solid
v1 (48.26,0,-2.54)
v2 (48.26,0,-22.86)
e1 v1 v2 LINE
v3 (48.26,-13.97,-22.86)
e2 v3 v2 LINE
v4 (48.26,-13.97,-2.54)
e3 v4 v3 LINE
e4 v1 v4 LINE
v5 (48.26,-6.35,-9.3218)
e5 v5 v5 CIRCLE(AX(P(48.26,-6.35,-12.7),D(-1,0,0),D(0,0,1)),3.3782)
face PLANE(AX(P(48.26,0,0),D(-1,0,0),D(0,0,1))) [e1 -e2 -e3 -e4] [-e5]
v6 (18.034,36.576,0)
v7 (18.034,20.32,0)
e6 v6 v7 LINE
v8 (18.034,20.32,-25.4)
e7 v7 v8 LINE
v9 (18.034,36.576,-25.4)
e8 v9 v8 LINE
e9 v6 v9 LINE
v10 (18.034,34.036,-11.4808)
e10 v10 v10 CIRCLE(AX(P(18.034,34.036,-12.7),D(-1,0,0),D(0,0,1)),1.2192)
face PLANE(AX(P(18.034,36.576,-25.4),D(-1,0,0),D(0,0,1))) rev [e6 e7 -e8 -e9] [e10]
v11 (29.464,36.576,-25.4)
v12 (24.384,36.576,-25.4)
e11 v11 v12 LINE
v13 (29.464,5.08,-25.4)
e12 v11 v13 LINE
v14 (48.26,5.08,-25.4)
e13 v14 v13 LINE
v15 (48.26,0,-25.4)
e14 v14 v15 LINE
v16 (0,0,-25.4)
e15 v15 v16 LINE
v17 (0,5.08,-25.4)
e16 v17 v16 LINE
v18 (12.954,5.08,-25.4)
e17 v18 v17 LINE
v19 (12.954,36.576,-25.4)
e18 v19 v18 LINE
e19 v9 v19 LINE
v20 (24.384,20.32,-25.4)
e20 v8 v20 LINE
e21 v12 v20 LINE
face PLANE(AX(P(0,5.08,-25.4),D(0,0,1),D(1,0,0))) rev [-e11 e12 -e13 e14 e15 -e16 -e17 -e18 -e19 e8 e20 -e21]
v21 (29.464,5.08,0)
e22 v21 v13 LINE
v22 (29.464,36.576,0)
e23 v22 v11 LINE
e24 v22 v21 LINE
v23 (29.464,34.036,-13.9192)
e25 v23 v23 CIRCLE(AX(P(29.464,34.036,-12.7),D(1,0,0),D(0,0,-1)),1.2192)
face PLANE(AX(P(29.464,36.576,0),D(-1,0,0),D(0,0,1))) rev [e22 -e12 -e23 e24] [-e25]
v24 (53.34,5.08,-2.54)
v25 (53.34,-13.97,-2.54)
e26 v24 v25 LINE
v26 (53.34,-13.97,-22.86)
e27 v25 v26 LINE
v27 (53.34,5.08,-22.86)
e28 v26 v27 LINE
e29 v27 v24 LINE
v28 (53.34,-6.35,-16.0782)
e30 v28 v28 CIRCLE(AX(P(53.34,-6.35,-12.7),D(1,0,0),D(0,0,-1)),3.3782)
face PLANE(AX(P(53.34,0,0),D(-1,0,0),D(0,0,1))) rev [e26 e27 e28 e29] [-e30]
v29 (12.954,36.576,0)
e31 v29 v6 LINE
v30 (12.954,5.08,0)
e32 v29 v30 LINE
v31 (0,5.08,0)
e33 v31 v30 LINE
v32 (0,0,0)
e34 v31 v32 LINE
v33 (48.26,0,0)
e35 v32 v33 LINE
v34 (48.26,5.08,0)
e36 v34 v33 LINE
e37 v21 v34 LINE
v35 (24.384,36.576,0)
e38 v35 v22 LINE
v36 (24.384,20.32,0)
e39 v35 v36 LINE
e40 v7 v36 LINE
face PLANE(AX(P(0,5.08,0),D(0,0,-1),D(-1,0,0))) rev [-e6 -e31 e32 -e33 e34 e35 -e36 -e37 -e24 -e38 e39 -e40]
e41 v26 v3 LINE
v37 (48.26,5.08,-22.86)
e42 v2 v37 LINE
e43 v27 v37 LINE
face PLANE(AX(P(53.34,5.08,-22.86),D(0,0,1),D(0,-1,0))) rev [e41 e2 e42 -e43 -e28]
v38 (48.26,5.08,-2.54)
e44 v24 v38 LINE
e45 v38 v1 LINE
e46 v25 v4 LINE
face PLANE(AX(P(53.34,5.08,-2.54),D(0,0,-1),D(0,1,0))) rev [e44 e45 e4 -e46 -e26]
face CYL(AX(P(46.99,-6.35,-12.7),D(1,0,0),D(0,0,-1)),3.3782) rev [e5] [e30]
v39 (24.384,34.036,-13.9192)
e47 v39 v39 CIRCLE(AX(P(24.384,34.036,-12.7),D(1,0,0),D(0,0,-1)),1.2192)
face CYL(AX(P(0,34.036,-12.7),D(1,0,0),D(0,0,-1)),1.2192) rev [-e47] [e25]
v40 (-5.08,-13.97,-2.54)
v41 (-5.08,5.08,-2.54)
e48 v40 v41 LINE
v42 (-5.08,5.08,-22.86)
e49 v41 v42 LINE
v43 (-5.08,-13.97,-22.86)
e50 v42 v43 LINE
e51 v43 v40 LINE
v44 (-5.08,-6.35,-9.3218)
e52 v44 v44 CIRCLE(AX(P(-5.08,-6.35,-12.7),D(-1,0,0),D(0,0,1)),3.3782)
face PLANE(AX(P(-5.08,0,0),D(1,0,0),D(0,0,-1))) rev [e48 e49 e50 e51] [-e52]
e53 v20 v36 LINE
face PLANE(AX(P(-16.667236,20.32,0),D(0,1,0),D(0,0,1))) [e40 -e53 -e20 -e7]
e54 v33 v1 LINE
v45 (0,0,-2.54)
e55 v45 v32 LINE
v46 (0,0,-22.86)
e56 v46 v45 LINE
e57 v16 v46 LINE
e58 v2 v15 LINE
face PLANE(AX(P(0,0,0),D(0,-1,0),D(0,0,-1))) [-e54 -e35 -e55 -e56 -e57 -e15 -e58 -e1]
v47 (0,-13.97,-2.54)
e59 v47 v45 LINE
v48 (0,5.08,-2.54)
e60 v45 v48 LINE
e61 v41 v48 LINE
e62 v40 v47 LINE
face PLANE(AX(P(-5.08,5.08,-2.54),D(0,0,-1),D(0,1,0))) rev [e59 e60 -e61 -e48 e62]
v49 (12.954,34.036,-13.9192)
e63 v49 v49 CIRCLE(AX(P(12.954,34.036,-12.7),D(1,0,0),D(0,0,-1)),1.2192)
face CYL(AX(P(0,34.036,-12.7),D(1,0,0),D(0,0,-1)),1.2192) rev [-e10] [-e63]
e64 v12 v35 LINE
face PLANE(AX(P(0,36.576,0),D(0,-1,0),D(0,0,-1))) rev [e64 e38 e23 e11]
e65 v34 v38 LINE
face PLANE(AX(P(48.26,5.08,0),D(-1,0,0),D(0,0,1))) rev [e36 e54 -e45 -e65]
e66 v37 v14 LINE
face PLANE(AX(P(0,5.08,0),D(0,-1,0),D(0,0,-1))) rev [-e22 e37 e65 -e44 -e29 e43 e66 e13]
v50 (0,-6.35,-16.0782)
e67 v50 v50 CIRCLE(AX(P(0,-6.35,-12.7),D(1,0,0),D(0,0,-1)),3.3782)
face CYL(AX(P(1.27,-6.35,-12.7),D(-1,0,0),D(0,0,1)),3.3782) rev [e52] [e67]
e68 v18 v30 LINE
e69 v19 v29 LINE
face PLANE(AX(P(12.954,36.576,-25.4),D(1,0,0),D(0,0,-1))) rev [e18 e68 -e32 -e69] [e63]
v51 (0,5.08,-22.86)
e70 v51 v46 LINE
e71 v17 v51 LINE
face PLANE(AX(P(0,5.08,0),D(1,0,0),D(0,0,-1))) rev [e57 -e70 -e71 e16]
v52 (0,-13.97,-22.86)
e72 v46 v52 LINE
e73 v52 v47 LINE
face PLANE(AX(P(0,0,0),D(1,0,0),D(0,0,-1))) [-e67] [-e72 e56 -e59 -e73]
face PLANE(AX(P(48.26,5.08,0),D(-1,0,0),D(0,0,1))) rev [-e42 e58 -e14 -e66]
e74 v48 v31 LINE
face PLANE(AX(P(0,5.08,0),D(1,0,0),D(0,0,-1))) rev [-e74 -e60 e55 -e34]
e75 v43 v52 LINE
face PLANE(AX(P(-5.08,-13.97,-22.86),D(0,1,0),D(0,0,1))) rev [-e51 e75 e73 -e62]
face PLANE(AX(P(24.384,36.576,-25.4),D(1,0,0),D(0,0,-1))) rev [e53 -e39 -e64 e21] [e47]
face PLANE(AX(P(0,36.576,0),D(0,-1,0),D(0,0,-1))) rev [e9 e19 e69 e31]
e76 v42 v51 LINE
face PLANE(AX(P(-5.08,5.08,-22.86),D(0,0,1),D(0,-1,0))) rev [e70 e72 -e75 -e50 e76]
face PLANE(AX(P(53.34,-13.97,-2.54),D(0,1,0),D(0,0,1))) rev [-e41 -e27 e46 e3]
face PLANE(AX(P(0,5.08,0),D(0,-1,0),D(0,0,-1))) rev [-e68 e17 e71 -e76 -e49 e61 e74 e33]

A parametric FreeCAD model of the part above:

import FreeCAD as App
import Part
import Sketcher
from FreeCAD import Vector
Q = App.Units.Quantity

doc = App.newDocument("Part")
body = doc.addObject("PartDesign::Body", "Body")

sketch1 = body.newObject("Sketcher::SketchObject", "Sketch")
sketch1.AttachmentSupport = (doc.getObject("XZ_Plane"), [""])
sketch1.MapMode = "FlatFace"
sketch1.addGeometry([
    Part.LineSegment(Vector(0, -25, 0), Vector(0, 0, 0)),
    Part.LineSegment(Vector(0, 0, 0), Vector(48, 0, 0)),
    Part.LineSegment(Vector(48, 0, 0), Vector(48, -25, 0)),
    Part.LineSegment(Vector(48, -25, 0), Vector(0, -25, 0)),
], False)
sketch1.addConstraint([
    Sketcher.Constraint("Coincident", 0, 2, 1, 1),
    Sketcher.Constraint("Coincident", 1, 2, 2, 1),
    Sketcher.Constraint("Coincident", 2, 2, 3, 1),
    Sketcher.Constraint("Coincident", 3, 2, 0, 1),
    Sketcher.Constraint("Vertical", 0),
    Sketcher.Constraint("Horizontal", 1),
    Sketcher.Constraint("Vertical", 2),
    Sketcher.Constraint("Horizontal", 3),
    Sketcher.Constraint("Coincident", 0, 2, -1, 1),
    Sketcher.Constraint("DistanceY", 0, 1, 0, 2, Q("1 in")),
    Sketcher.Constraint("DistanceX", 1, 1, 1, 2, Q("1.9 in")),
])
pad1 = body.newObject("PartDesign::Pad", "Pad")
pad1.Profile = sketch1
pad1.Length = Q("0.2 in")
pad1.Reversed = True

sketch2 = body.newObject("Sketcher::SketchObject", "Sketch001")
sketch2.AttachmentSupport = (doc.getObject("XZ_Plane"), [""])
sketch2.MapMode = "FlatFace"
sketch2.AttachmentOffset = App.Placement(Vector(0, 0, -0.2 * 25.4), App.Rotation())
sketch2.addGeometry([
    Part.LineSegment(Vector(24, -25, 0), Vector(24, 0, 0)),
    Part.LineSegment(Vector(24, 0, 0), Vector(29, 0, 0)),
    Part.LineSegment(Vector(29, 0, 0), Vector(29, -25, 0)),
    Part.LineSegment(Vector(29, -25, 0), Vector(24, -25, 0)),
    Part.LineSegment(Vector(13, -25, 0), Vector(13, 0, 0)),
    Part.LineSegment(Vector(13, 0, 0), Vector(18, 0, 0)),
    Part.LineSegment(Vector(18, 0, 0), Vector(18, -25, 0)),
    Part.LineSegment(Vector(18, -25, 0), Vector(13, -25, 0)),
], False)
sketch2.addConstraint([
    Sketcher.Constraint("Coincident", 0, 2, 1, 1),
    Sketcher.Constraint("Coincident", 1, 2, 2, 1),
    Sketcher.Constraint("Coincident", 2, 2, 3, 1),
    Sketcher.Constraint("Coincident", 3, 2, 0, 1),
    Sketcher.Constraint("Coincident", 4, 2, 5, 1),
    Sketcher.Constraint("Coincident", 5, 2, 6, 1),
    Sketcher.Constraint("Coincident", 6, 2, 7, 1),
    Sketcher.Constraint("Coincident", 7, 2, 4, 1),
    Sketcher.Constraint("Vertical", 0),
    Sketcher.Constraint("Horizontal", 1),
    Sketcher.Constraint("Vertical", 2),
    Sketcher.Constraint("Horizontal", 3),
    Sketcher.Constraint("Vertical", 4),
    Sketcher.Constraint("Horizontal", 5),
    Sketcher.Constraint("Vertical", 6),
    Sketcher.Constraint("Horizontal", 7),
    Sketcher.Constraint("PointOnObject", 0, 2, -1),
    Sketcher.Constraint("PointOnObject", 4, 2, -1),
    Sketcher.Constraint("Horizontal", 3, 2, 6, 2),
    Sketcher.Constraint("Equal", 3, 5),
    Sketcher.Constraint("DistanceY", 0, 1, 0, 2, Q("1 in")),
    Sketcher.Constraint("DistanceX", 1, 1, 1, 2, Q("0.2 in")),
    Sketcher.Constraint("DistanceX", -1, 1, 0, 2, Q("0.96 in")),
    Sketcher.Constraint("DistanceX", -1, 1, 4, 2, Q("0.51 in")),
])
pad2 = body.newObject("PartDesign::Pad", "Pad001")
pad2.Profile = sketch2
pad2.Length = Q("1.24 in")
pad2.Reversed = True

sketch3 = body.newObject("Sketcher::SketchObject", "Sketch002")
sketch3.AttachmentSupport = (doc.getObject("YZ_Plane"), [""])
sketch3.MapMode = "FlatFace"
sketch3.AttachmentOffset = App.Placement(Vector(0, 0, 1.16 * 25.4), App.Rotation())
sketch3.addGeometry(Part.Circle(Vector(34, -12.7, 0), Vector(0, 0, 1), 1.2), False)
sketch3.addConstraint([
    Sketcher.Constraint("Diameter", 0, Q("0.096 in")),
    Sketcher.Constraint("DistanceY", 0, 3, -1, 1, Q("0.5 in")),
    Sketcher.Constraint("DistanceX", -1, 1, 0, 3, Q("1.34 in")),
])
pocket1 = body.newObject("PartDesign::Pocket", "Pocket")
pocket1.Profile = sketch3
pocket1.Type = "ThroughAll"

sketch4 = body.newObject("Sketcher::SketchObject", "Sketch003")
sketch4.AttachmentSupport = (doc.getObject("YZ_Plane"), [""])
sketch4.MapMode = "FlatFace"
sketch4.AttachmentOffset = App.Placement(Vector(0, 0, 1.16 * 25.4), App.Rotation())
sketch4.addGeometry([
    Part.LineSegment(Vector(20, 0, 0), Vector(5, 0, 0)),
    Part.LineSegment(Vector(5, 0, 0), Vector(5, -25, 0)),
    Part.LineSegment(Vector(5, -25, 0), Vector(20, -25, 0)),
    Part.LineSegment(Vector(20, -25, 0), Vector(20, 0, 0)),
], False)
sketch4.addConstraint([
    Sketcher.Constraint("Coincident", 0, 2, 1, 1),
    Sketcher.Constraint("Coincident", 1, 2, 2, 1),
    Sketcher.Constraint("Coincident", 2, 2, 3, 1),
    Sketcher.Constraint("Coincident", 3, 2, 0, 1),
    Sketcher.Constraint("Horizontal", 0),
    Sketcher.Constraint("Vertical", 1),
    Sketcher.Constraint("Horizontal", 2),
    Sketcher.Constraint("Vertical", 3),
    Sketcher.Constraint("PointOnObject", 0, 2, -1),
    Sketcher.Constraint("DistanceY", 1, 2, 1, 1, Q("1 in")),
    Sketcher.Constraint("DistanceX", 0, 2, 0, 1, Q("0.6 in")),
    Sketcher.Constraint("DistanceX", -1, 1, 0, 2, Q("0.2 in")),
])
pad3 = body.newObject("PartDesign::Pad", "Pad002")
pad3.Profile = sketch4
pad3.Length = Q("0.65 in")
pad3.Reversed = True

sketch5 = body.newObject("Sketcher::SketchObject", "Sketch004")
sketch5.AttachmentSupport = (doc.getObject("YZ_Plane"), [""])
sketch5.MapMode = "FlatFace"
sketch5.addGeometry([
    Part.LineSegment(Vector(5, -23, 0), Vector(-14, -23, 0)),
    Part.LineSegment(Vector(-14, -23, 0), Vector(-14, -3, 0)),
    Part.LineSegment(Vector(-14, -3, 0), Vector(5, -3, 0)),
    Part.LineSegment(Vector(5, -3, 0), Vector(5, -23, 0)),
], False)
sketch5.addConstraint([
    Sketcher.Constraint("Coincident", 0, 2, 1, 1),
    Sketcher.Constraint("Coincident", 1, 2, 2, 1),
    Sketcher.Constraint("Coincident", 2, 2, 3, 1),
    Sketcher.Constraint("Coincident", 3, 2, 0, 1),
    Sketcher.Constraint("Horizontal", 0),
    Sketcher.Constraint("Vertical", 1),
    Sketcher.Constraint("Horizontal", 2),
    Sketcher.Constraint("Vertical", 3),
    Sketcher.Constraint("DistanceY", 1, 1, 1, 2, Q("0.8 in")),
    Sketcher.Constraint("DistanceX", 0, 2, 0, 1, Q("0.75 in")),
    Sketcher.Constraint("DistanceY", 0, 2, -1, 1, Q("0.9 in")),
    Sketcher.Constraint("DistanceX", -1, 1, 2, 2, Q("0.2 in")),
])
pad4 = body.newObject("PartDesign::Pad", "Pad003")
pad4.Profile = sketch5
pad4.Length = Q("0.2 in")
pad4.Reversed = True

sketch6 = body.newObject("Sketcher::SketchObject", "Sketch005")
sketch6.AttachmentSupport = (doc.getObject("YZ_Plane"), [""])
sketch6.MapMode = "FlatFace"
sketch6.AttachmentOffset = App.Placement(Vector(0, 0, 1.9 * 25.4), App.Rotation())
sketch6.addGeometry([
    Part.LineSegment(Vector(5, -3, 0), Vector(-14, -3, 0)),
    Part.LineSegment(Vector(-14, -3, 0), Vector(-14, -23, 0)),
    Part.LineSegment(Vector(-14, -23, 0), Vector(5, -23, 0)),
    Part.LineSegment(Vector(5, -23, 0), Vector(5, -3, 0)),
], False)
sketch6.addConstraint([
    Sketcher.Constraint("Coincident", 0, 2, 1, 1),
    Sketcher.Constraint("Coincident", 1, 2, 2, 1),
    Sketcher.Constraint("Coincident", 2, 2, 3, 1),
    Sketcher.Constraint("Coincident", 3, 2, 0, 1),
    Sketcher.Constraint("Horizontal", 0),
    Sketcher.Constraint("Vertical", 1),
    Sketcher.Constraint("Horizontal", 2),
    Sketcher.Constraint("Vertical", 3),
    Sketcher.Constraint("DistanceY", 1, 2, 1, 1, Q("0.8 in")),
    Sketcher.Constraint("DistanceX", 0, 2, 0, 1, Q("0.75 in")),
    Sketcher.Constraint("DistanceY", 0, 2, -1, 1, Q("0.1 in")),
    Sketcher.Constraint("DistanceX", -1, 1, 2, 2, Q("0.2 in")),
])
pad5 = body.newObject("PartDesign::Pad", "Pad004")
pad5.Profile = sketch6
pad5.Length = Q("0.2 in")

sketch7 = body.newObject("Sketcher::SketchObject", "Sketch006")
sketch7.AttachmentSupport = (doc.getObject("YZ_Plane"), [""])
sketch7.MapMode = "FlatFace"
sketch7.AttachmentOffset = App.Placement(Vector(0, 0, 2.1 * 25.4), App.Rotation())
sketch7.addGeometry(Part.Circle(Vector(-6.3, -12.7, 0), Vector(0, 0, 1), 3.4), False)
sketch7.addConstraint([
    Sketcher.Constraint("Diameter", 0, Q("0.266 in")),
    Sketcher.Constraint("DistanceY", 0, 3, -1, 1, Q("0.5 in")),
    Sketcher.Constraint("DistanceX", 0, 3, -1, 1, Q("0.25 in")),
])
pocket2 = body.newObject("PartDesign::Pocket", "Pocket001")
pocket2.Profile = sketch7
pocket2.Length = Q("0.25 in")

sketch8 = body.newObject("Sketcher::SketchObject", "Sketch007")
sketch8.AttachmentSupport = (doc.getObject("YZ_Plane"), [""])
sketch8.MapMode = "FlatFace"
sketch8.AttachmentOffset = App.Placement(Vector(0, 0, -0.2 * 25.4), App.Rotation())
sketch8.addGeometry(Part.Circle(Vector(-6.3, -12.7, 0), Vector(0, 0, 1), 3.4), False)
sketch8.addConstraint([
    Sketcher.Constraint("Diameter", 0, Q("0.266 in")),
    Sketcher.Constraint("DistanceY", 0, 3, -1, 1, Q("0.5 in")),
    Sketcher.Constraint("DistanceX", 0, 3, -1, 1, Q("0.25 in")),
])
pocket3 = body.newObject("PartDesign::Pocket", "Pocket002")
pocket3.Profile = sketch8
pocket3.Length = Q("0.25 in")
pocket3.Reversed = True

doc.recompute()
